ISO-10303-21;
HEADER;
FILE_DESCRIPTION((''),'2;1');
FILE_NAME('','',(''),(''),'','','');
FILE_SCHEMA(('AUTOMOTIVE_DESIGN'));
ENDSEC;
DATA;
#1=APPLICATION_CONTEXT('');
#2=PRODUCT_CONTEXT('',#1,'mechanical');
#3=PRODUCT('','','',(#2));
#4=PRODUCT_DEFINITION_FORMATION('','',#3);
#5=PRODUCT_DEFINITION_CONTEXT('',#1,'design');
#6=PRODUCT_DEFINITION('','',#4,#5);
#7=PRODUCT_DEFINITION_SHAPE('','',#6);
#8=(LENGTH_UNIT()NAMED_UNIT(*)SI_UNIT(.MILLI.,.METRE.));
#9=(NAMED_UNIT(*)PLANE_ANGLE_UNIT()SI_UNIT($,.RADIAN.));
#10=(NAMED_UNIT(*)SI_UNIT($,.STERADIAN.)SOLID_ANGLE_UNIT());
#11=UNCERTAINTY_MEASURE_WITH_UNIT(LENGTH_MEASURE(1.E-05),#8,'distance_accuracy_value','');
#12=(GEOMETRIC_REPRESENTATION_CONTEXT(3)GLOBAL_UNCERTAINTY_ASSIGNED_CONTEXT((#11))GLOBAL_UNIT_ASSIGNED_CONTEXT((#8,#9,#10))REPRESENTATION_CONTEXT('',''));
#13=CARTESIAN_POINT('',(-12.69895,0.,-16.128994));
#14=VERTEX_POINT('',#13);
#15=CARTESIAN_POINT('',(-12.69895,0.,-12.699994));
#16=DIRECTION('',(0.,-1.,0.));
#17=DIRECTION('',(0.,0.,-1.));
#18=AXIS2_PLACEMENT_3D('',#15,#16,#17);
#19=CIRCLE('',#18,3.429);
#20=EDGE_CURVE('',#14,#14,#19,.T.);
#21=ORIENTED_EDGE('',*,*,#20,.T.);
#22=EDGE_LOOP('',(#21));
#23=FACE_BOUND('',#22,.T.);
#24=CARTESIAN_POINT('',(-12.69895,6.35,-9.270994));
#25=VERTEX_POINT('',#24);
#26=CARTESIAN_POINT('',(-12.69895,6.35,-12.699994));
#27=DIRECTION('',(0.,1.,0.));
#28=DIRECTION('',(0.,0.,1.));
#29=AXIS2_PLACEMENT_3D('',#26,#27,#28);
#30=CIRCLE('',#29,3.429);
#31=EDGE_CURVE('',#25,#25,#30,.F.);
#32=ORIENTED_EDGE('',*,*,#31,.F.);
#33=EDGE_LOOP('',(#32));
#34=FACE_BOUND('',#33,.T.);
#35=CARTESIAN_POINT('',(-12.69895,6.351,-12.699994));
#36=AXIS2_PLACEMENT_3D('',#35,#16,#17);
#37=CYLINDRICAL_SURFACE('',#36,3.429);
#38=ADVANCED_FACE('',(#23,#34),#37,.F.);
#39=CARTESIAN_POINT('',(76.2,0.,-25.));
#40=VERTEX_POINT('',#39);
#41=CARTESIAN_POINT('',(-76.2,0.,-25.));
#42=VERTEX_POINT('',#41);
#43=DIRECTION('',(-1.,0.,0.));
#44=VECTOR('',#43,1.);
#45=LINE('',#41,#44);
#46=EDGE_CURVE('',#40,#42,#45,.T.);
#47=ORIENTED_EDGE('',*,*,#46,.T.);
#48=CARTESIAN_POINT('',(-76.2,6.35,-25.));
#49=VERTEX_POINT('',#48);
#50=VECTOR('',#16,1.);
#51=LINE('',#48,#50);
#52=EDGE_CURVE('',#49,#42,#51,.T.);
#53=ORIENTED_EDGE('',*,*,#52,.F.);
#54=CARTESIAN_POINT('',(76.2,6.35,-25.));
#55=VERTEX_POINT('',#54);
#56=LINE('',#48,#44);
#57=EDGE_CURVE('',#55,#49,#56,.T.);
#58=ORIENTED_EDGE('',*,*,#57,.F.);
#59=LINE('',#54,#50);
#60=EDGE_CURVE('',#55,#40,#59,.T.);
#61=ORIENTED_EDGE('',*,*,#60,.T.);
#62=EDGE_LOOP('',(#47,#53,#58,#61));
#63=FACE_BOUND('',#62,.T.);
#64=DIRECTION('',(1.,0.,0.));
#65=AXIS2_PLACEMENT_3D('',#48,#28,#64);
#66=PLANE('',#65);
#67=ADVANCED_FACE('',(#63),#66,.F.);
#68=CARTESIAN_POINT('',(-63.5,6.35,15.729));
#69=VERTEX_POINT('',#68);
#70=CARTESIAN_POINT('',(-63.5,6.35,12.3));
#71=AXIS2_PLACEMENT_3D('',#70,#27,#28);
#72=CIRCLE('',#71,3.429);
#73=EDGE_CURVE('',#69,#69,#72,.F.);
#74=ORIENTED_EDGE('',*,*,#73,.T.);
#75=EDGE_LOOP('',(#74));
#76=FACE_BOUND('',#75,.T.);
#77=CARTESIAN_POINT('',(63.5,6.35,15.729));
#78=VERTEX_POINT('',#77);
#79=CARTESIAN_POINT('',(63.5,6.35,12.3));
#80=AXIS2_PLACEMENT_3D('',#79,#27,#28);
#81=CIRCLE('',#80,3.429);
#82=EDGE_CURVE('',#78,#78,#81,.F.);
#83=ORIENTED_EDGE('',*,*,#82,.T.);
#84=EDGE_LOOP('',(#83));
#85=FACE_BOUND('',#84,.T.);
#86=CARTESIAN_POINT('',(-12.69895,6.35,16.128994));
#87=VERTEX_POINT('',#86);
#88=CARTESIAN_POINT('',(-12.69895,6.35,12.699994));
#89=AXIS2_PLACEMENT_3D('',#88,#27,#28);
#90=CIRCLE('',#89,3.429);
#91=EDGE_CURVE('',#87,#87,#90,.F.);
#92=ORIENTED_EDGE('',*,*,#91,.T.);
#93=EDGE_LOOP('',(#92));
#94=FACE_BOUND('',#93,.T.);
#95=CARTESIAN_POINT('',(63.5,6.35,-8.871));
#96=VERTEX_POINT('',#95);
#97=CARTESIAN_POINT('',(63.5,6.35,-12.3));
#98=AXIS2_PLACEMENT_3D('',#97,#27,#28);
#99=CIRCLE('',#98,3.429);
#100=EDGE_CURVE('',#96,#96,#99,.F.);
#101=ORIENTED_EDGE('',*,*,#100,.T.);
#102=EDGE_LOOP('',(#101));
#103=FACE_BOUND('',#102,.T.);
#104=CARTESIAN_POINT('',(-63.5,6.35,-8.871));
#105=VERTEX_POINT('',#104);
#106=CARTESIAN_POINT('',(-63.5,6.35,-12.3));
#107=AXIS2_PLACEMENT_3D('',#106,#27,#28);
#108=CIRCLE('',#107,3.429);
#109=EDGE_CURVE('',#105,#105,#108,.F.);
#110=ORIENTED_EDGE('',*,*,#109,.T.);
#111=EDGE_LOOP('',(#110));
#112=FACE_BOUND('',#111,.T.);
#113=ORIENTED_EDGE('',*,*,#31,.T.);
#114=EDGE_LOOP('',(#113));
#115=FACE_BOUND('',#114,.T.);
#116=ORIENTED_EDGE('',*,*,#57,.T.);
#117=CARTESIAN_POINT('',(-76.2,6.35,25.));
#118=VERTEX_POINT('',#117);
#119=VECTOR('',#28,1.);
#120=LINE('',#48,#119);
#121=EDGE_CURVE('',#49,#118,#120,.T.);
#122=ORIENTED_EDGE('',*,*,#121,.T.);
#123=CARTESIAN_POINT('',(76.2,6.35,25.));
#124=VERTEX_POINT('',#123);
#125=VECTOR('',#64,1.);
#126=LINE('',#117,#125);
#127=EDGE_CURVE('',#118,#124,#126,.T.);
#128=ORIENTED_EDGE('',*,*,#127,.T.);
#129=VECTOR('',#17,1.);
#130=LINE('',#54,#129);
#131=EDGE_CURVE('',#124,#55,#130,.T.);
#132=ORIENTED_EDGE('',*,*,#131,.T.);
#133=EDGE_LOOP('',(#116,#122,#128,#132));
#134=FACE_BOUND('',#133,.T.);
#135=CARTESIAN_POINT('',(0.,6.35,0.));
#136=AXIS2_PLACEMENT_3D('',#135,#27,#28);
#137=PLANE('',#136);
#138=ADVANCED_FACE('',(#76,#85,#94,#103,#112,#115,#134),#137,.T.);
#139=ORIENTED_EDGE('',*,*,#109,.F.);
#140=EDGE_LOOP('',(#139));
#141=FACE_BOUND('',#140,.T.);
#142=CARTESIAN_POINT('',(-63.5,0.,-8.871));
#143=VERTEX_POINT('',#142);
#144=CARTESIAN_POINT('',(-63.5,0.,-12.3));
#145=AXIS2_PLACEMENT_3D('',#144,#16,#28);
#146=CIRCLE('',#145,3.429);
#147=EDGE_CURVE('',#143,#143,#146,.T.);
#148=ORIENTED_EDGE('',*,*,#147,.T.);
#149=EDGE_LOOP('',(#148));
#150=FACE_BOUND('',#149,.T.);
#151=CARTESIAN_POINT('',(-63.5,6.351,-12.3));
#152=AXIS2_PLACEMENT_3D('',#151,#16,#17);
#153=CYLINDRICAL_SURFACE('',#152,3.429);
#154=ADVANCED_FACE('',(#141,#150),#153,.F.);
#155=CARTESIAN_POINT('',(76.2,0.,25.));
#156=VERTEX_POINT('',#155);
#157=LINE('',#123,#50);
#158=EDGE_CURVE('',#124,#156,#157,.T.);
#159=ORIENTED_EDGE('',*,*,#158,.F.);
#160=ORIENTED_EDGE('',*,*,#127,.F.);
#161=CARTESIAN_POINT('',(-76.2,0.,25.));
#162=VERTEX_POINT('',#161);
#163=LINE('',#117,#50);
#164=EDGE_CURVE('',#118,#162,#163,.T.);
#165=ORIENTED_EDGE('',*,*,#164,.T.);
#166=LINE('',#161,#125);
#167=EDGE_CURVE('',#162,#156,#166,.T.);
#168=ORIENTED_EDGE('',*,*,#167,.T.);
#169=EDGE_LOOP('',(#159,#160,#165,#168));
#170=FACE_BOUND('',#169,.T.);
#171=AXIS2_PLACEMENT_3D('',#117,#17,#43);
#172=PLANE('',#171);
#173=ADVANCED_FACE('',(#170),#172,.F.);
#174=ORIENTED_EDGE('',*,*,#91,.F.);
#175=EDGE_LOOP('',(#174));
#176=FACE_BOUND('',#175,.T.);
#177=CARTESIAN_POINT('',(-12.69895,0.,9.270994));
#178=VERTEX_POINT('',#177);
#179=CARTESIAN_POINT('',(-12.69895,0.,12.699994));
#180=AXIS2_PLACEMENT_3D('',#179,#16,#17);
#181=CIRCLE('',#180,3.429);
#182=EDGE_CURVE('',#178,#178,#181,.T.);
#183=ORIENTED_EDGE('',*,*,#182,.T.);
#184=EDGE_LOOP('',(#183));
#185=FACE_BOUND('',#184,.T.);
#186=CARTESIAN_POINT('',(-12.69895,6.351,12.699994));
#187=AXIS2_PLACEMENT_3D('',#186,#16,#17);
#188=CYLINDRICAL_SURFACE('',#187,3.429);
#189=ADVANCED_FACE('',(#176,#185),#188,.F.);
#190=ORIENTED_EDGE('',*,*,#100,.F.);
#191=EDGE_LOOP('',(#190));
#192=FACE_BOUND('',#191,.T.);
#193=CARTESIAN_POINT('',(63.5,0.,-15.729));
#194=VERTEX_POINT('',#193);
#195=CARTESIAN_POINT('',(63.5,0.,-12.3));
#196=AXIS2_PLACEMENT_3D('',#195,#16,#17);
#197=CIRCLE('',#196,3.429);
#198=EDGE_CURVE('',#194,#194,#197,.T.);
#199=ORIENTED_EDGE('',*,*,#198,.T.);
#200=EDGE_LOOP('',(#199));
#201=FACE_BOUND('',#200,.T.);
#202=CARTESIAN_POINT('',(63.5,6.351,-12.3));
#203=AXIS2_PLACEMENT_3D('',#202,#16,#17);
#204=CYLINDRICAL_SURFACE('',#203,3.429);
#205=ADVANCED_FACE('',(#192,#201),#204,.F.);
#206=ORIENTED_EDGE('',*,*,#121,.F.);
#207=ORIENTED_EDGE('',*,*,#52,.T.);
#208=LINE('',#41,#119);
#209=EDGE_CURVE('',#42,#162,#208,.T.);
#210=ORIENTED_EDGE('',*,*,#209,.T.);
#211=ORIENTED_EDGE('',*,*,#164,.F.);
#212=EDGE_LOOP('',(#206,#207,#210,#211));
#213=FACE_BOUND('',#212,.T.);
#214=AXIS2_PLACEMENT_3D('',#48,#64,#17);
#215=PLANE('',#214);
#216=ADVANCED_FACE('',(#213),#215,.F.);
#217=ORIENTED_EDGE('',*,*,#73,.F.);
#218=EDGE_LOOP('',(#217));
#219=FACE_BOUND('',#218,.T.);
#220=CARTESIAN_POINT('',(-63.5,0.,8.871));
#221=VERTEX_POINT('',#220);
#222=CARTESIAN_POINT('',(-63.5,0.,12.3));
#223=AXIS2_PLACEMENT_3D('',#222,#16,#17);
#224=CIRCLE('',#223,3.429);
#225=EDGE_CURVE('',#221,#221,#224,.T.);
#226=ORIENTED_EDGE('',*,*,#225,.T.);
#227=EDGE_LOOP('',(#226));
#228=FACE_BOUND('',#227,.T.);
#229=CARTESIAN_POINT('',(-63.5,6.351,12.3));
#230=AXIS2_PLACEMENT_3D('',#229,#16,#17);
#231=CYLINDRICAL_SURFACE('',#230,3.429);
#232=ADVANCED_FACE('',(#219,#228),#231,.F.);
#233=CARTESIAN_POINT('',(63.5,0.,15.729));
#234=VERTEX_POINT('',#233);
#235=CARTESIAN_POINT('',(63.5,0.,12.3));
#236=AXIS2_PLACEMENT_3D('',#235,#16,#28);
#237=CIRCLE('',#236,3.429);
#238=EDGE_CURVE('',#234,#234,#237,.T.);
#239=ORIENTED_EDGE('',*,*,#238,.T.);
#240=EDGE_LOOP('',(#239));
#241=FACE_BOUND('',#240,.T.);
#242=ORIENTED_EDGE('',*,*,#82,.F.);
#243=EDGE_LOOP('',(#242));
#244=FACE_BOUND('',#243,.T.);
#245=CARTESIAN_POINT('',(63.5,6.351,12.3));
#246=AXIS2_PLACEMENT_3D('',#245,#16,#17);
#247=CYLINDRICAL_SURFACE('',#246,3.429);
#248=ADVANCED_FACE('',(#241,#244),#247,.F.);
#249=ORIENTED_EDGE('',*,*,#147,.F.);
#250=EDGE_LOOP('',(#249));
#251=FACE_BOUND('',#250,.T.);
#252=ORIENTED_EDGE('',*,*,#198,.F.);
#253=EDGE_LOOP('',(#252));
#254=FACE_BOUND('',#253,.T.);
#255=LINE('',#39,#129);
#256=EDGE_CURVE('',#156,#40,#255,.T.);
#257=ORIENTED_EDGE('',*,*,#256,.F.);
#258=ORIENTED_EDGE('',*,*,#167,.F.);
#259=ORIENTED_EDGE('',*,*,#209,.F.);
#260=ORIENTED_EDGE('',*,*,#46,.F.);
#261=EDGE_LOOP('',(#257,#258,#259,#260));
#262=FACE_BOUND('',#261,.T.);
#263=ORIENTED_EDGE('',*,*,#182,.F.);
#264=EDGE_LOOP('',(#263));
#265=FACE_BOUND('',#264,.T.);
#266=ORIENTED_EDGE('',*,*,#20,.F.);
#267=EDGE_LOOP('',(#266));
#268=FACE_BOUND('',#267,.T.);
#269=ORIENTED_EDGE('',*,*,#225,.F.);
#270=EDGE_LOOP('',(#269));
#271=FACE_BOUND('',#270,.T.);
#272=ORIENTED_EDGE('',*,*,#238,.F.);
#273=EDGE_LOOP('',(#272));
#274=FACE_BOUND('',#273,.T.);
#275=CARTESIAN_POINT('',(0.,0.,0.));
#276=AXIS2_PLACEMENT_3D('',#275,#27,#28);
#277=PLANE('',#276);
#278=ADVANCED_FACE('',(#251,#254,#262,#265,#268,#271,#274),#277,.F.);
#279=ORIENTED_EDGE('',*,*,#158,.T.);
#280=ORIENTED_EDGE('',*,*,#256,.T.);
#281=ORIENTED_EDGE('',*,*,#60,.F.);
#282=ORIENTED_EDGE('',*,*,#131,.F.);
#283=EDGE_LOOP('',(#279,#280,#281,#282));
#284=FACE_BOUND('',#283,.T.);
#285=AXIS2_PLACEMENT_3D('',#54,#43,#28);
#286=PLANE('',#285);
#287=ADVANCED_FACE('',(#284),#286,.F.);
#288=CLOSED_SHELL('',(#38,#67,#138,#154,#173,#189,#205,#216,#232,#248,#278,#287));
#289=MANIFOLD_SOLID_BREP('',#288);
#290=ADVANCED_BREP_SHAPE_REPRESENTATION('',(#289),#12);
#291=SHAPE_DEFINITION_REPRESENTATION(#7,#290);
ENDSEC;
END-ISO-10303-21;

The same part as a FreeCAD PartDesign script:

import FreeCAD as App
import Part
import Sketcher

V = App.Vector
Q = App.Units.Quantity

doc = App.newDocument("Part")
body = doc.addObject("PartDesign::Body", "Body")

sketch1 = body.newObject("Sketcher::SketchObject", "Sketch")
sketch1.AttachmentSupport = (doc.getObject("XZ_Plane"), [""])
sketch1.MapMode = "FlatFace"
sketch1.addGeometry(Part.LineSegment(V(-76, -25, 0), V(-76, 25, 0)), False)
sketch1.addGeometry(Part.LineSegment(V(-76, 25, 0), V(76, 25, 0)), False)
sketch1.addGeometry(Part.LineSegment(V(76, 25, 0), V(76, -25, 0)), False)
sketch1.addGeometry(Part.LineSegment(V(76, -25, 0), V(-76, -25, 0)), False)
sketch1.addConstraint(Sketcher.Constraint("Coincident", 0, 2, 1, 1))
sketch1.addConstraint(Sketcher.Constraint("Coincident", 1, 2, 2, 1))
sketch1.addConstraint(Sketcher.Constraint("Coincident", 2, 2, 3, 1))
sketch1.addConstraint(Sketcher.Constraint("Coincident", 3, 2, 0, 1))
sketch1.addConstraint(Sketcher.Constraint("Vertical", 0))
sketch1.addConstraint(Sketcher.Constraint("Horizontal", 1))
sketch1.addConstraint(Sketcher.Constraint("Vertical", 2))
sketch1.addConstraint(Sketcher.Constraint("Horizontal", 3))
sketch1.addConstraint(Sketcher.Constraint("Symmetric", 0, 2, 2, 2, -1, 1))
sketch1.addConstraint(Sketcher.Constraint("DistanceX", 1, 1, 1, 2, Q("6 in")))
sketch1.addConstraint(Sketcher.Constraint("DistanceY", 0, 1, 0, 2, Q("50 mm")))
pad1 = body.newObject("PartDesign::Pad", "Pad")
pad1.Profile = sketch1
pad1.Length = Q("0.25 in")
pad1.Reversed = True

sketch2 = body.newObject("Sketcher::SketchObject", "Sketch001")
sketch2.AttachmentSupport = (doc.getObject("XZ_Plane"), [""])
sketch2.MapMode = "FlatFace"
sketch2.addGeometry(Part.Circle(V(-63.5, 12.3, 0), V(0, 0, 1), 3.4), False)
sketch2.addConstraint(Sketcher.Constraint("Diameter", 0, Q("0.27 in")))
sketch2.addConstraint(Sketcher.Constraint("DistanceX", 0, 3, -1, 1, Q("2.5 in")))
sketch2.addConstraint(Sketcher.Constraint("DistanceY", -1, 1, 0, 3, Q("12.3 mm")))
pocket1 = body.newObject("PartDesign::Pocket", "Pocket")
pocket1.Profile = sketch2
pocket1.Type = "UpToFirst"

sketch3 = body.newObject("Sketcher::SketchObject", "Sketch002")
sketch3.AttachmentSupport = (doc.getObject("XZ_Plane"), [""])
sketch3.MapMode = "FlatFace"
sketch3.addGeometry(Part.Circle(V(-63.5, -12.3, 0), V(0, 0, 1), 3.4), False)
sketch3.addConstraint(Sketcher.Constraint("Diameter", 0, Q("0.27 in")))
sketch3.addConstraint(Sketcher.Constraint("DistanceX", 0, 3, -1, 1, Q("2.5 in")))
sketch3.addConstraint(Sketcher.Constraint("DistanceY", 0, 3, -1, 1, Q("12.3 mm")))
pocket2 = body.newObject("PartDesign::Pocket", "Pocket001")
pocket2.Profile = sketch3
pocket2.Type = "UpToFirst"

sketch4 = body.newObject("Sketcher::SketchObject", "Sketch003")
sketch4.AttachmentSupport = (doc.getObject("XZ_Plane"), [""])
sketch4.MapMode = "FlatFace"
sketch4.addGeometry(Part.Circle(V(63.5, 12.3, 0), V(0, 0, 1), 3.4), False)
sketch4.addConstraint(Sketcher.Constraint("Diameter", 0, Q("0.27 in")))
sketch4.addConstraint(Sketcher.Constraint("DistanceX", -1, 1, 0, 3, Q("2.5 in")))
sketch4.addConstraint(Sketcher.Constraint("DistanceY", -1, 1, 0, 3, Q("12.3 mm")))
pocket3 = body.newObject("PartDesign::Pocket", "Pocket002")
pocket3.Profile = sketch4
pocket3.Type = "UpToFirst"

sketch5 = body.newObject("Sketcher::SketchObject", "Sketch004")
sketch5.AttachmentSupport = (doc.getObject("XZ_Plane"), [""])
sketch5.MapMode = "FlatFace"
sketch5.addGeometry(Part.Circle(V(63.5, -12.3, 0), V(0, 0, 1), 3.4), False)
sketch5.addConstraint(Sketcher.Constraint("Diameter", 0, Q("0.27 in")))
sketch5.addConstraint(Sketcher.Constraint("DistanceX", -1, 1, 0, 3, Q("2.5 in")))
sketch5.addConstraint(Sketcher.Constraint("DistanceY", 0, 3, -1, 1, Q("12.3 mm")))
pocket4 = body.newObject("PartDesign::Pocket", "Pocket003")
pocket4.Profile = sketch5
pocket4.Type = "UpToFirst"

sketch6 = body.newObject("Sketcher::SketchObject", "Sketch005")
sketch6.AttachmentSupport = (doc.getObject("XZ_Plane"), [""])
sketch6.MapMode = "FlatFace"
sketch6.addGeometry(Part.Circle(V(-12.7, 12.7, 0), V(0, 0, 1), 3.4), False)
sketch6.addConstraint(Sketcher.Constraint("Diameter", 0, Q("0.27 in")))
sketch6.addConstraint(Sketcher.Constraint("DistanceX", 0, 3, -1, 1, Q("12.69895 mm")))
sketch6.addConstraint(Sketcher.Constraint("DistanceY", -1, 1, 0, 3, Q("12.699994 mm")))
pocket5 = body.newObject("PartDesign::Pocket", "Pocket004")
pocket5.Profile = sketch6
pocket5.Type = "UpToFirst"

sketch7 = body.newObject("Sketcher::SketchObject", "Sketch006")
sketch7.AttachmentSupport = (doc.getObject("XZ_Plane"), [""])
sketch7.MapMode = "FlatFace"
sketch7.addGeometry(Part.Circle(V(-12.7, -12.7, 0), V(0, 0, 1), 3.4), False)
sketch7.addConstraint(Sketcher.Constraint("Diameter", 0, Q("0.27 in")))
sketch7.addConstraint(Sketcher.Constraint("DistanceX", 0, 3, -1, 1, Q("12.69895 mm")))
sketch7.addConstraint(Sketcher.Constraint("DistanceY", 0, 3, -1, 1, Q("12.699994 mm")))
pocket6 = body.newObject("PartDesign::Pocket", "Pocket005")
pocket6.Profile = sketch7
pocket6.Type = "UpToFirst"

doc.recompute()
